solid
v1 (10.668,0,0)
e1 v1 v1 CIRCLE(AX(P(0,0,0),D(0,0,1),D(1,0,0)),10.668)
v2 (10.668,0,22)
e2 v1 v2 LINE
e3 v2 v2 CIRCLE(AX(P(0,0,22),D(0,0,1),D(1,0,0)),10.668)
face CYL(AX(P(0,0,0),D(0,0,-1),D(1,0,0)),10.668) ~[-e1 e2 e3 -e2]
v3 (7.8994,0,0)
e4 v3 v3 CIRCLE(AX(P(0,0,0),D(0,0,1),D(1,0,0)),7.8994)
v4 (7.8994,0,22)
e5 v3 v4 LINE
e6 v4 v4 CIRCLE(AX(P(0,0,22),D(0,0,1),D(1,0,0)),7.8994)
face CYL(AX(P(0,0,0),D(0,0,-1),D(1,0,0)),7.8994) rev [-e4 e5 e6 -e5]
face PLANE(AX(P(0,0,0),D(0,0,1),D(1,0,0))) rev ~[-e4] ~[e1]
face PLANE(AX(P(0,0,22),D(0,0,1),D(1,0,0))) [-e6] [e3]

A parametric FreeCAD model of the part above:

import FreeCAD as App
import Part
import Sketcher
Q = App.Units.Quantity

doc = App.newDocument("Part")
body = doc.addObject("PartDesign::Body", "Body")

# Sketch on XY plane
sketch1 = body.newObject("Sketcher::SketchObject", "Sketch")
sketch1.AttachmentSupport = (doc.getObject("XY_Plane"), [""])
sketch1.MapMode = "FlatFace"
sketch1.addGeometry([
    Part.Circle(App.Vector(0, 0, 0), App.Vector(0, 0, 1), 11),
    Part.Circle(App.Vector(0, 0, 0), App.Vector(0, 0, 1), 8),
], False)
sketch1.addConstraint([
    Sketcher.Constraint("Coincident", 0, 3, -1, 1),
    Sketcher.Constraint("Coincident", 1, 3, -1, 1),
    Sketcher.Constraint("Diameter", 0, Q("0.84 in")),
    Sketcher.Constraint("Diameter", 1, Q("0.622 in")),
])
pad1 = body.newObject("PartDesign::Pad", "Pad")
pad1.Profile = sketch1
pad1.Length = 22

doc.recompute()
